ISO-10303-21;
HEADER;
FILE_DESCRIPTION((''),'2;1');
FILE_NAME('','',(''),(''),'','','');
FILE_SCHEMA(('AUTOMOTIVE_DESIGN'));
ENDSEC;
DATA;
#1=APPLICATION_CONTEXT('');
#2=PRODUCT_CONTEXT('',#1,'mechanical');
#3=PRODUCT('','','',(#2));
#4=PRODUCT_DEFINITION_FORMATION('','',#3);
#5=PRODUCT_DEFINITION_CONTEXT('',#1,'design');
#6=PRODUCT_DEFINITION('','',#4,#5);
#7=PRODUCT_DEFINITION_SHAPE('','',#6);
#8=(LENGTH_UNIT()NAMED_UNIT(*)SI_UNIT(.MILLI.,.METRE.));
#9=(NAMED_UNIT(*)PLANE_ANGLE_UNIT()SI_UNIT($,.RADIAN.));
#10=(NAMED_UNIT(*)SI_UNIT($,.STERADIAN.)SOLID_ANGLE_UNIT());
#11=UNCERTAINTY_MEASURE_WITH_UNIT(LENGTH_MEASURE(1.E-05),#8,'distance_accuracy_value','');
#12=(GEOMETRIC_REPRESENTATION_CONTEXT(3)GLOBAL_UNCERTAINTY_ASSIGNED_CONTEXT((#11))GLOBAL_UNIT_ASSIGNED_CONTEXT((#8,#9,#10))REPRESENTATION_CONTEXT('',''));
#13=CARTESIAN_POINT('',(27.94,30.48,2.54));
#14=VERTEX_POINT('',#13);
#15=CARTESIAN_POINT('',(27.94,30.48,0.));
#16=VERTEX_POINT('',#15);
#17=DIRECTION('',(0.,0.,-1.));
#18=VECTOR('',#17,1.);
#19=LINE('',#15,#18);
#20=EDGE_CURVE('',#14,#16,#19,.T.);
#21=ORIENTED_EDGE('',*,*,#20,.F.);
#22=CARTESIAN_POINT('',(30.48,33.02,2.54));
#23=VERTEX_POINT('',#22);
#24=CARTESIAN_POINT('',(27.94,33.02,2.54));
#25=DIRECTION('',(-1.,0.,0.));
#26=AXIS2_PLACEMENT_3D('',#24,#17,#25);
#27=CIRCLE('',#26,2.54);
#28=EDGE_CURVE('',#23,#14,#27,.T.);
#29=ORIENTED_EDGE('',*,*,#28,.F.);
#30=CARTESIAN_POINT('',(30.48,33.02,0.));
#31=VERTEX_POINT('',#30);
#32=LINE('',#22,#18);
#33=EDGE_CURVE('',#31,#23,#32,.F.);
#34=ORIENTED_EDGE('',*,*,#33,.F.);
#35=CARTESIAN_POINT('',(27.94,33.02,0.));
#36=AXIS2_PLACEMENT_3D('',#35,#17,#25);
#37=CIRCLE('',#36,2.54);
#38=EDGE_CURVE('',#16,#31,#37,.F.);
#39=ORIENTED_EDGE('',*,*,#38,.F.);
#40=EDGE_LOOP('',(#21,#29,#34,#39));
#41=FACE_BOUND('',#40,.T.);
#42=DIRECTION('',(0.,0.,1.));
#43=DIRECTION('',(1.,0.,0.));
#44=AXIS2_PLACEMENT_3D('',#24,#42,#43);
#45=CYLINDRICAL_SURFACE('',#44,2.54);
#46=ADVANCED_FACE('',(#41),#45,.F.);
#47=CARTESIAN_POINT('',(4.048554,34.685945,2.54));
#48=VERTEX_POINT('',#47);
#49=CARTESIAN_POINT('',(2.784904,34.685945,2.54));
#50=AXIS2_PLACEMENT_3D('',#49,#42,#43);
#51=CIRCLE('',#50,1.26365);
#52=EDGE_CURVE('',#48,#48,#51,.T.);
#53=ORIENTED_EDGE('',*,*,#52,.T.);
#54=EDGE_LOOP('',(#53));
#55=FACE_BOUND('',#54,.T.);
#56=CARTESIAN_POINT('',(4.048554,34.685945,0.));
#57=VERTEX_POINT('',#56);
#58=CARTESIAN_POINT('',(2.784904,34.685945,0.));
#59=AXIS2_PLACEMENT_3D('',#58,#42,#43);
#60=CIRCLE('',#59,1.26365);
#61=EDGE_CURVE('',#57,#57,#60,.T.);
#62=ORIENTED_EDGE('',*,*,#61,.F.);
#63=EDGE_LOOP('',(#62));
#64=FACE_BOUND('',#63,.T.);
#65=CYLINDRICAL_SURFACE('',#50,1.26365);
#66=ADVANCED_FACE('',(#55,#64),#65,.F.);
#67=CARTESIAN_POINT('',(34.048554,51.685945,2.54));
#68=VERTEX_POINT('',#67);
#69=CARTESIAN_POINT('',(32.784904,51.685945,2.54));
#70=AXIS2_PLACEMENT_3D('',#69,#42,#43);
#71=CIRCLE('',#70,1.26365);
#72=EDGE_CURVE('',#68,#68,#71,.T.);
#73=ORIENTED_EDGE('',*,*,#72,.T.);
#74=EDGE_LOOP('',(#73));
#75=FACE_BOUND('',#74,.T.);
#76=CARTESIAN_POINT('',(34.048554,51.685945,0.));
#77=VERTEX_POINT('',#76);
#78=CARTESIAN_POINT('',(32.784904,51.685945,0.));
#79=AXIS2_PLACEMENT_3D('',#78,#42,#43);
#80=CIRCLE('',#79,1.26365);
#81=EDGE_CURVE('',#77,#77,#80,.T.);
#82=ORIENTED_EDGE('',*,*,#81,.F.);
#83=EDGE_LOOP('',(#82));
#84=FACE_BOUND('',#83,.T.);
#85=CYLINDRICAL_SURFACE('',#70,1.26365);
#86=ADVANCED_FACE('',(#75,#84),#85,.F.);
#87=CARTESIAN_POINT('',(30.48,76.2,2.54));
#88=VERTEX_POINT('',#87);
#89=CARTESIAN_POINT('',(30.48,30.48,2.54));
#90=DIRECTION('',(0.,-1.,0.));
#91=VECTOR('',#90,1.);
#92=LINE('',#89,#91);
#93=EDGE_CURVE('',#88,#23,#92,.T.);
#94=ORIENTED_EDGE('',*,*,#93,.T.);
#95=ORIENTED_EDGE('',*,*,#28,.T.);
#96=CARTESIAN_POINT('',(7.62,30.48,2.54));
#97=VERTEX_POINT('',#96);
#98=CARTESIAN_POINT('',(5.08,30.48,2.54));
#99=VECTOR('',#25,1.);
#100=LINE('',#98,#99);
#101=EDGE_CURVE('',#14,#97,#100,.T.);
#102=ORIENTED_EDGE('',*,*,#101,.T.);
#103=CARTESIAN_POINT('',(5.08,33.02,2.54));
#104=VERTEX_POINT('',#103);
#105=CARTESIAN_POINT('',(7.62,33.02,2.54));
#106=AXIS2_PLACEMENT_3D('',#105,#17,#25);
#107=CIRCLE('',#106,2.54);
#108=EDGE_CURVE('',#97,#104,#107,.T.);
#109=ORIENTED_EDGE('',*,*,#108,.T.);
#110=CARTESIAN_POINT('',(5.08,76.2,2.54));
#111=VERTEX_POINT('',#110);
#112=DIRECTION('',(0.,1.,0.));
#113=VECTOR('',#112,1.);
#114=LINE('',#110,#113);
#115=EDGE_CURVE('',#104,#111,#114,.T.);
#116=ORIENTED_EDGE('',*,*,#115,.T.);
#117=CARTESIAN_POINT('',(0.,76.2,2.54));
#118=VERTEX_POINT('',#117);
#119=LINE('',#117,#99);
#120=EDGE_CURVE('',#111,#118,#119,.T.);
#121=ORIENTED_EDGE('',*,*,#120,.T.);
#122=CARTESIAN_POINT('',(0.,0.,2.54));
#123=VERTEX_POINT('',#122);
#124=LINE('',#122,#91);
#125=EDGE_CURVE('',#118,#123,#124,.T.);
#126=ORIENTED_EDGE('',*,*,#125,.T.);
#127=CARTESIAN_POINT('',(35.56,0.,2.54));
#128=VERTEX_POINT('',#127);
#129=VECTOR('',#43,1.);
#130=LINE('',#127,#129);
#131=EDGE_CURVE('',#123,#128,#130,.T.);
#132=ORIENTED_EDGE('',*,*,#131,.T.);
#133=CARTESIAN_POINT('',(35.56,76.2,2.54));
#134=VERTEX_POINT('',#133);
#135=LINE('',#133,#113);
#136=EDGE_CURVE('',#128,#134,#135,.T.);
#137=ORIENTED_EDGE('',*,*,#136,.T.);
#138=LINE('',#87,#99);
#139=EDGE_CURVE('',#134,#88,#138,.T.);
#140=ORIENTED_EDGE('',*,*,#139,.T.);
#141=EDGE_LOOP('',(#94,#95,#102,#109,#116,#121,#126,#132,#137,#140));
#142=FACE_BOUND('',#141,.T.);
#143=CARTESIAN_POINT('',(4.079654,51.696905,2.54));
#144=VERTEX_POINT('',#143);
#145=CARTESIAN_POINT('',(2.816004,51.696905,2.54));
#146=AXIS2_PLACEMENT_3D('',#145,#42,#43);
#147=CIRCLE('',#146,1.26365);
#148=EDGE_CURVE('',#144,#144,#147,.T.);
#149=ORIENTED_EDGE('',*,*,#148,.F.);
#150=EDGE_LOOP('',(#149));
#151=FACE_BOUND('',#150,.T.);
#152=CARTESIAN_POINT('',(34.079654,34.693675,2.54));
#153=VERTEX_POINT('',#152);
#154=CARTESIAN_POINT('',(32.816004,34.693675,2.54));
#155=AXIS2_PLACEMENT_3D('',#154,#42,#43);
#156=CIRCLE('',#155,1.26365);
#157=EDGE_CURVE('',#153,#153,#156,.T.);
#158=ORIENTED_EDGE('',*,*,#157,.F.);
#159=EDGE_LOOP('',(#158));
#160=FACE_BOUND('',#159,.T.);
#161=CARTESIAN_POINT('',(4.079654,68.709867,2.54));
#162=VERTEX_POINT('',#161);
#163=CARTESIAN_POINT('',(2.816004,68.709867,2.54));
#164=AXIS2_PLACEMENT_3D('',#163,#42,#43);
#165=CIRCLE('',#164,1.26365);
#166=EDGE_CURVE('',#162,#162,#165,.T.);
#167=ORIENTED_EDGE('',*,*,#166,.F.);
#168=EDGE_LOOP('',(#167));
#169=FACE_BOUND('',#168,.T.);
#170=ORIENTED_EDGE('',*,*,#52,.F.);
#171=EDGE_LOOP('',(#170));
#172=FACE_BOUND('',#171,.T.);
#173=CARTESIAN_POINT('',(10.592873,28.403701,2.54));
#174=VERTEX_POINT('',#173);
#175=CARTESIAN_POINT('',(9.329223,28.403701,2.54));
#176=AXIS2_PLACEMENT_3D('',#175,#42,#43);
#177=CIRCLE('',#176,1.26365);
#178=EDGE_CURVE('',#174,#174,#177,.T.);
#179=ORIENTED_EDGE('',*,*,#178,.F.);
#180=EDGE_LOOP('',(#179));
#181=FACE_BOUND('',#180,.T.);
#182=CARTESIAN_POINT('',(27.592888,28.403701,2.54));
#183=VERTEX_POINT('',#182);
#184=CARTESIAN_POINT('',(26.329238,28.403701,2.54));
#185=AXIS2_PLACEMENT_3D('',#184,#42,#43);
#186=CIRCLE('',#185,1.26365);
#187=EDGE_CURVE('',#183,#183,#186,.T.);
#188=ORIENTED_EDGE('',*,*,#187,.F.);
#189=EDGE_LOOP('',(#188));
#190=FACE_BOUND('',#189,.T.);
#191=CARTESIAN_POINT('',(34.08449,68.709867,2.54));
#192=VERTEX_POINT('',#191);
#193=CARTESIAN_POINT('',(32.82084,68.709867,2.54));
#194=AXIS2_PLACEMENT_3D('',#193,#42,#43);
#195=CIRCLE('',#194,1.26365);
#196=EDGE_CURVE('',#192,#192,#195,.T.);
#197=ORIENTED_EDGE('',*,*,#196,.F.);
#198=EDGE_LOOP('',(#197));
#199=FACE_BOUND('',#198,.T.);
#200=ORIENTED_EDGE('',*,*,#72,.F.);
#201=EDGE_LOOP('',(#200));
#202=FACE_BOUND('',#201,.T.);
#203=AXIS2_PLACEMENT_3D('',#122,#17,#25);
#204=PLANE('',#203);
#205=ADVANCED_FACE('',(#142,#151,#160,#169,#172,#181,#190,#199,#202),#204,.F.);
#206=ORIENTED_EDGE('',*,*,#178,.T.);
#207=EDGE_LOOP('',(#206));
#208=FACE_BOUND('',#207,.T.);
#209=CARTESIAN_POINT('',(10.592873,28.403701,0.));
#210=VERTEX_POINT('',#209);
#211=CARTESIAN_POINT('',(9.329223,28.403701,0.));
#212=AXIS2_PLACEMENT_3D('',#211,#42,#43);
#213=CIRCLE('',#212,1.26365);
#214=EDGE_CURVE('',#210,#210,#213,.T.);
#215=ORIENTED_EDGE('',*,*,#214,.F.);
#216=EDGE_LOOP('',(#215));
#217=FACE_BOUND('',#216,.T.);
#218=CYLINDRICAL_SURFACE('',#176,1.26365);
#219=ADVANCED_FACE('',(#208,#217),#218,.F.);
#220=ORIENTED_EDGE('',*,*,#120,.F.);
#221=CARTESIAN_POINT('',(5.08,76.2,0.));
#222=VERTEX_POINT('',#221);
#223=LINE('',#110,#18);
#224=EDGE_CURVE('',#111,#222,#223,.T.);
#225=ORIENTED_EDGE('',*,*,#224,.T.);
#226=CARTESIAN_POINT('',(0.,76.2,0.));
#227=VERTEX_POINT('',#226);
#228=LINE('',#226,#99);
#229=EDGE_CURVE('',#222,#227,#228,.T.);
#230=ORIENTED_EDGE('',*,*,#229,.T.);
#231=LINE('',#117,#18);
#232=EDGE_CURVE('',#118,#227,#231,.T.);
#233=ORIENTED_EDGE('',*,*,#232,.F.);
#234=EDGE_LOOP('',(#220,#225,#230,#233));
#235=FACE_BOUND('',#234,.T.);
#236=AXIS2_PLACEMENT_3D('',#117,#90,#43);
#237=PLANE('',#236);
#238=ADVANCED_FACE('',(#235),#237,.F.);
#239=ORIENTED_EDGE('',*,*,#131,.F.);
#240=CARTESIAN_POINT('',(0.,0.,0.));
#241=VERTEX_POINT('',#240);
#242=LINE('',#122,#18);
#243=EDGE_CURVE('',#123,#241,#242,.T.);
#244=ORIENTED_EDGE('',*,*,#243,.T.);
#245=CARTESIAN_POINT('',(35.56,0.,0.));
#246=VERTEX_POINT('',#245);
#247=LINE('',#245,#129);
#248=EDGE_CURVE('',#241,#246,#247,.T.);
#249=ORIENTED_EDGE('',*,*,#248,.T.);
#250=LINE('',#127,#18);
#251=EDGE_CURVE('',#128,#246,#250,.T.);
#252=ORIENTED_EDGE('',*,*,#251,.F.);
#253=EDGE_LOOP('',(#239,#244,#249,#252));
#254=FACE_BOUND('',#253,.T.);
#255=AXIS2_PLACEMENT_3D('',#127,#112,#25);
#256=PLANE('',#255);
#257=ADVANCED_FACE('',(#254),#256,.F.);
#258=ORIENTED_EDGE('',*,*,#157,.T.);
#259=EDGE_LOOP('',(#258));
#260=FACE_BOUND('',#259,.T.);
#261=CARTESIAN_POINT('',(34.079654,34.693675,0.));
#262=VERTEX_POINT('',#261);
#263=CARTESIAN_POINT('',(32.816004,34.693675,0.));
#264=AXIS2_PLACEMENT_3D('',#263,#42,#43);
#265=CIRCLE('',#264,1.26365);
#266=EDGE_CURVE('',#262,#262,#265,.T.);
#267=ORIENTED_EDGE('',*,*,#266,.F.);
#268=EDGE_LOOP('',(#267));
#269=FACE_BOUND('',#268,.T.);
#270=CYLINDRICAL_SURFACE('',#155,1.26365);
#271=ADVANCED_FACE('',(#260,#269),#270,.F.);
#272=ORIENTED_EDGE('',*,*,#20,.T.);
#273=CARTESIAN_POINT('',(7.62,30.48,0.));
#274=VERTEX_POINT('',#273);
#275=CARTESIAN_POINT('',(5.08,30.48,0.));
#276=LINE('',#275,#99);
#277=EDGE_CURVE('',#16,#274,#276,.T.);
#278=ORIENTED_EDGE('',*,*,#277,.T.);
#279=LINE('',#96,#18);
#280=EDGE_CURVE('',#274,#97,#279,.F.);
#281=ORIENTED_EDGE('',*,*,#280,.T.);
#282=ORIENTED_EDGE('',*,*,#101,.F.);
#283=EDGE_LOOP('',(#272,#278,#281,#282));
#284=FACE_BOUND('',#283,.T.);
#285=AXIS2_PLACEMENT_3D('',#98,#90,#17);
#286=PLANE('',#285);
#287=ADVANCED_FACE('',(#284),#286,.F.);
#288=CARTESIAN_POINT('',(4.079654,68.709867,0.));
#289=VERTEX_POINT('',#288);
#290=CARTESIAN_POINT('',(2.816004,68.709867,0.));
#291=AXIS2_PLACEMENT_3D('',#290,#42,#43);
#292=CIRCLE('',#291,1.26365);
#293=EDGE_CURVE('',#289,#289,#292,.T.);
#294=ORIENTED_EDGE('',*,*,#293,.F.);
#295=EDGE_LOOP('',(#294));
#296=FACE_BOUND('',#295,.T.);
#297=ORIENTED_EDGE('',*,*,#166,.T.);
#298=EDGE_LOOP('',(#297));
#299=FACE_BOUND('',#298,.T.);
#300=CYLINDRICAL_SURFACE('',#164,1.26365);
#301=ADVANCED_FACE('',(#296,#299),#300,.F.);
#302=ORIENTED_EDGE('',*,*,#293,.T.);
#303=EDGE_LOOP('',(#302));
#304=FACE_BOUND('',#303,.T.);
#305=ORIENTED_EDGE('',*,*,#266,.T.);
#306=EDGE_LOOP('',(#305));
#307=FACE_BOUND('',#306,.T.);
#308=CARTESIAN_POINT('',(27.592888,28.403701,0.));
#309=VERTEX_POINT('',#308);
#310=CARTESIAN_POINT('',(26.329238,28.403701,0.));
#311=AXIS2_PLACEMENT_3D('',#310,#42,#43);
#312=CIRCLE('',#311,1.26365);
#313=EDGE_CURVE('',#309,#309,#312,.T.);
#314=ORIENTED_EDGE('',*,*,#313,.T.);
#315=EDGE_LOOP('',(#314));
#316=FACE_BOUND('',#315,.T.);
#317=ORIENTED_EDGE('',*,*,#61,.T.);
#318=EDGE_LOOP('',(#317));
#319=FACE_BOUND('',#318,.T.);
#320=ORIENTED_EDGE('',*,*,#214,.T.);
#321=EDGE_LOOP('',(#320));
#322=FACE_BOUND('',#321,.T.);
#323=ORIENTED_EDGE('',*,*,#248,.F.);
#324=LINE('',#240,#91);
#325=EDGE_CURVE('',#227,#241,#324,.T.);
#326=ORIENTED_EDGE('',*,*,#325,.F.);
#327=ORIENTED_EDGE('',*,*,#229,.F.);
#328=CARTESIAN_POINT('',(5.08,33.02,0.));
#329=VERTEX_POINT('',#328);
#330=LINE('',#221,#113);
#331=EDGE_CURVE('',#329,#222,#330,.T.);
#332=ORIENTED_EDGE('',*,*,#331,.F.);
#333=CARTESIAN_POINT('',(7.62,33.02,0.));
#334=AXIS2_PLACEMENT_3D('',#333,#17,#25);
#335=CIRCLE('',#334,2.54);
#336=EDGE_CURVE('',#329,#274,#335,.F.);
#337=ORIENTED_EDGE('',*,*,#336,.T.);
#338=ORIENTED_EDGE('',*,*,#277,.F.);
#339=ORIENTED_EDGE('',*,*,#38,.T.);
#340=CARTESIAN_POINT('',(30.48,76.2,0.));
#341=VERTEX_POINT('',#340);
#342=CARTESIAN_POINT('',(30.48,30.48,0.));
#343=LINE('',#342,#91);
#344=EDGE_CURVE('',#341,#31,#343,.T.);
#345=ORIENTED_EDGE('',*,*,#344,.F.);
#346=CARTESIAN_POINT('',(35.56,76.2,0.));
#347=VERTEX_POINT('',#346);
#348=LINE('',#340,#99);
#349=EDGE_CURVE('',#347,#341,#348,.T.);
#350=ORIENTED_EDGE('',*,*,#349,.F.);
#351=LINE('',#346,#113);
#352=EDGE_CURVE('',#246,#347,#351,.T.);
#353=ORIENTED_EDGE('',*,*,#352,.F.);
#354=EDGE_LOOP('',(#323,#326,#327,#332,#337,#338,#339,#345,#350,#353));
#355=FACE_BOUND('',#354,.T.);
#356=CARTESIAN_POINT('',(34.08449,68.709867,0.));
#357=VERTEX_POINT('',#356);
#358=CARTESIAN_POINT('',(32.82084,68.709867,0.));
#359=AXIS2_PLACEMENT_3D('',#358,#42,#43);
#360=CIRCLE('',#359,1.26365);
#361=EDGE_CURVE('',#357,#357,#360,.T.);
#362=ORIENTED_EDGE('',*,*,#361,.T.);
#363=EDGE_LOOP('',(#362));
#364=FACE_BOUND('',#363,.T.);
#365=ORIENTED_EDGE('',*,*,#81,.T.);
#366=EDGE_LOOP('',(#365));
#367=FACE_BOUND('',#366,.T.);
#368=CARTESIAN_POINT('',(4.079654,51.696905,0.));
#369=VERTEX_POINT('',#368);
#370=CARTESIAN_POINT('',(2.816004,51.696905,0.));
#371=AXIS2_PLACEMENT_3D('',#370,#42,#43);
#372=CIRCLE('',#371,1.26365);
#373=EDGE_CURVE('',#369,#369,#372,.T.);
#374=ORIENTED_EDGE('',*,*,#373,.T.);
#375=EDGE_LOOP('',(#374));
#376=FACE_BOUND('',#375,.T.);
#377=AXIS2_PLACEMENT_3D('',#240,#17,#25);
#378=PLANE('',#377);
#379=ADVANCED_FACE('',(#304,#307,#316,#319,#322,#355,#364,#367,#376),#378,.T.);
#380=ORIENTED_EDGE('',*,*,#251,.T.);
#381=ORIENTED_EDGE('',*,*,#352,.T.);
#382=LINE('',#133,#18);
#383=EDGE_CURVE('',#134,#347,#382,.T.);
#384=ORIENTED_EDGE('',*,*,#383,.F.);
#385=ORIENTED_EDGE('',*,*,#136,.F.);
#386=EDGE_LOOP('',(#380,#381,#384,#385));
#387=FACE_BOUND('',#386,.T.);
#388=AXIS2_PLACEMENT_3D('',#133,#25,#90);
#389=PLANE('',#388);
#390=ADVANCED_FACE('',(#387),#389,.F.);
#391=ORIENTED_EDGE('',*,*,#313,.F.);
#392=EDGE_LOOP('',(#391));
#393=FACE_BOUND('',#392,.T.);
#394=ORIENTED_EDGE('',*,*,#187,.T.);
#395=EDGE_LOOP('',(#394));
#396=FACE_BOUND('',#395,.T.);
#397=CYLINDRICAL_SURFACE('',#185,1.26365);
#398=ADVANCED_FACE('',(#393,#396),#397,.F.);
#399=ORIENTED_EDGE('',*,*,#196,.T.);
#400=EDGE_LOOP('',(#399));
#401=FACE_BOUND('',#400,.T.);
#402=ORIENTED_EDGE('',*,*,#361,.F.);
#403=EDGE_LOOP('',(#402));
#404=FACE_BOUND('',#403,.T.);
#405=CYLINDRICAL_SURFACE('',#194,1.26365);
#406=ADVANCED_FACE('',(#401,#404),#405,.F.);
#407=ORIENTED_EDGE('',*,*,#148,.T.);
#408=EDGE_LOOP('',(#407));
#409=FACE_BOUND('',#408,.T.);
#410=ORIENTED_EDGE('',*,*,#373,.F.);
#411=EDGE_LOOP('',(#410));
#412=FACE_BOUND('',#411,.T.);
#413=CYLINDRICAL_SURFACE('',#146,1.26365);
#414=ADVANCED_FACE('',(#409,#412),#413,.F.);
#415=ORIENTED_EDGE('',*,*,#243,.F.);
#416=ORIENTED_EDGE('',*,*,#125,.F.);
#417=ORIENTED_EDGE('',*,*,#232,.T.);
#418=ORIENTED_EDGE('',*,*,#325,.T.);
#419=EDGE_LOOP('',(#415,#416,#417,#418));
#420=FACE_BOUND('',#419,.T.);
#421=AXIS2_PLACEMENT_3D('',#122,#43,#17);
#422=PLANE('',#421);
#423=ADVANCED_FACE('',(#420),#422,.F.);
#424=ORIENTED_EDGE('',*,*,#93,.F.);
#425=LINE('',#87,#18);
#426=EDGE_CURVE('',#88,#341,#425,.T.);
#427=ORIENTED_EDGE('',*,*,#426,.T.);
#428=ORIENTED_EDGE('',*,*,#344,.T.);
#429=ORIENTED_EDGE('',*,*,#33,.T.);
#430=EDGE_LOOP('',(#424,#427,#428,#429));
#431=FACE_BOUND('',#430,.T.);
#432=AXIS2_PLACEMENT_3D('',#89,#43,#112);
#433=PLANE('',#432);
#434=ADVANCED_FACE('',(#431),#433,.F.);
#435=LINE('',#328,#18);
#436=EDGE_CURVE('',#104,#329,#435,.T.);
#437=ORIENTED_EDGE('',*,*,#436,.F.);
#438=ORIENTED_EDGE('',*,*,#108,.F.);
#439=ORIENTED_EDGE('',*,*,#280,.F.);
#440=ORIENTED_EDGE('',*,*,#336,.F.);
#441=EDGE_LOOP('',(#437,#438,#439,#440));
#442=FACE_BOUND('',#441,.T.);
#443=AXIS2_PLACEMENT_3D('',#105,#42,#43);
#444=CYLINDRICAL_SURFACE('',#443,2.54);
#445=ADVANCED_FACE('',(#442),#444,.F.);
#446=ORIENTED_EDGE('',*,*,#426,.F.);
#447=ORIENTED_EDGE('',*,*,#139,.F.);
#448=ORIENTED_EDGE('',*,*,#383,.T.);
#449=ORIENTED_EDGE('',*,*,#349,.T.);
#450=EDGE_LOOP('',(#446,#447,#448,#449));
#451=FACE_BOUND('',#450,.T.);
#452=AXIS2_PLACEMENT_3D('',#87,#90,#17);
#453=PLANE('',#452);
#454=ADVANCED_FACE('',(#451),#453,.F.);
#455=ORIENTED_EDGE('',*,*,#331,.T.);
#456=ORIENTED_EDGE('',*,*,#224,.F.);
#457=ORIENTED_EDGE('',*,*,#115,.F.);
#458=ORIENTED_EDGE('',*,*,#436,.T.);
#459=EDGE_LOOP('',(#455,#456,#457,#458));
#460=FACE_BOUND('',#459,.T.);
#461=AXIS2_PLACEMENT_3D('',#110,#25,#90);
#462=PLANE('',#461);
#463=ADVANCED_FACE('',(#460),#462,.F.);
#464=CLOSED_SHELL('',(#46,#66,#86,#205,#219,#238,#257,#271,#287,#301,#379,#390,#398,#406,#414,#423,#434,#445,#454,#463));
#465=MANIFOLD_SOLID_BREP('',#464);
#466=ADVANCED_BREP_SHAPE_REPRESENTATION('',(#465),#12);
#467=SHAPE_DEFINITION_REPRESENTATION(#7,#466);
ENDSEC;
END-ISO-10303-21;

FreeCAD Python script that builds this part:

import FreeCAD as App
import Part
import Sketcher
from FreeCAD import Vector
Q = App.Units.Quantity


def edges_at(feature, points):
    """Names of the edges that pass closest to the given points."""
    edges = feature.Shape.Edges
    near = lambda p: min(range(len(edges)), key=lambda i: edges[i].distToShape(Part.Vertex(*p))[0])
    return sorted({f"Edge{near(p) + 1}" for p in points})


def add_polygon(sketch, points):
    """Adds a closed chain of lines whose ends are joined by coincident constraints."""
    first, n = sketch.GeometryCount, len(points)
    for a, b in zip(points, points[1:] + points[:1]):
        sketch.addGeometry(Part.LineSegment(App.Vector(*a, 0), App.Vector(*b, 0)), False)
    for i in range(n):
        sketch.addConstraint(Sketcher.Constraint("Coincident", first + i, 2, first + (i + 1) % n, 1))

doc = App.newDocument("Part")
body = doc.addObject("PartDesign::Body", "Body")

sketch1 = body.newObject("Sketcher::SketchObject", "Sketch")
sketch1.AttachmentSupport = (doc.getObject("XY_Plane"), [""])
sketch1.MapMode = "FlatFace"
add_polygon(sketch1, [(0, 76), (0, 0), (36, 0), (36, 76), (30, 76), (30, 30), (5, 30), (5, 76)])
sketch1.addConstraint([
    Sketcher.Constraint("Vertical", 0),
    Sketcher.Constraint("Horizontal", 1),
    Sketcher.Constraint("Vertical", 2),
    Sketcher.Constraint("Horizontal", 3),
    Sketcher.Constraint("Vertical", 4),
    Sketcher.Constraint("Horizontal", 5),
    Sketcher.Constraint("Vertical", 6),
    Sketcher.Constraint("Horizontal", 7),
    Sketcher.Constraint("Coincident", 0, 2, -1, 1),
    Sketcher.Constraint("Horizontal", 3, 2, 6, 2),
    Sketcher.Constraint("Equal", 3, 7),
    Sketcher.Constraint("DistanceX", 5, 2, 5, 1, Q("1 in")),
    Sketcher.Constraint("DistanceY", 0, 2, 0, 1, Q("3 in")),
    Sketcher.Constraint("DistanceX", 1, 1, 1, 2, Q("1.4 in")),
    Sketcher.Constraint("DistanceY", 4, 2, 4, 1, Q("1.8 in")),
])
pad1 = body.newObject("PartDesign::Pad", "Pad")
pad1.Profile = sketch1
pad1.Length = Q("0.1 in")
doc.recompute()

fillet = body.newObject("PartDesign::Fillet", "Fillet")
fillet.Base = (pad1, edges_at(pad1, [(5.08, 30.48, 1.27), (30.48, 30.48, 1.27)]))
fillet.Radius = Q("0.1 in")

sketch2 = body.newObject("Sketcher::SketchObject", "Sketch001")
sketch2.AttachmentSupport = (doc.getObject("XY_Plane"), [""])
sketch2.MapMode = "FlatFace"
sketch2.AttachmentOffset = App.Placement(Vector(0, 0, 0.1 * 25.4), App.Rotation())
sketch2.addGeometry([
    Part.Circle(Vector(32.8, 68.7, 0), Vector(0, 0, 1), 1.3),
    Part.Circle(Vector(32.8, 51.7, 0), Vector(0, 0, 1), 1.3),
    Part.Circle(Vector(32.8, 34.7, 0), Vector(0, 0, 1), 1.3),
    Part.Circle(Vector(26.3, 28.4, 0), Vector(0, 0, 1), 1.3),
    Part.Circle(Vector(9.3, 28.4, 0), Vector(0, 0, 1), 1.3),
    Part.Circle(Vector(2.8, 34.7, 0), Vector(0, 0, 1), 1.3),
    Part.Circle(Vector(2.8, 51.7, 0), Vector(0, 0, 1), 1.3),
    Part.Circle(Vector(2.8, 68.7, 0), Vector(0, 0, 1), 1.3),
], False)
sketch2.addConstraint([
    Sketcher.Constraint("Equal", 0, 1),
    Sketcher.Constraint("Equal", 1, 2),
    Sketcher.Constraint("Equal", 2, 3),
    Sketcher.Constraint("Equal", 3, 4),
    Sketcher.Constraint("Equal", 4, 5),
    Sketcher.Constraint("Equal", 5, 6),
    Sketcher.Constraint("Equal", 6, 7),
    Sketcher.Constraint("Horizontal", 3, 3, 4, 3),
    Sketcher.Constraint("Horizontal", 0, 3, 7, 3),
    Sketcher.Constraint("Vertical", 6, 3, 7, 3),
    Sketcher.Constraint("Diameter", 0, Q("0.0995 in")),
    Sketcher.Constraint("DistanceY", -1, 1, 3, 3, Q("28.403701 mm")),
    Sketcher.Constraint("DistanceX", 1, 3, 2, 3, Q("0.031099 mm")),
    Sketcher.Constraint("DistanceX", 5, 3, 2, 3, Q("30.031099 mm")),
    Sketcher.Constraint("DistanceY", 5, 3, 1, 3, Q("17 mm")),
    Sketcher.Constraint("DistanceX", 5, 3, 6, 3, Q("0.031099 mm")),
    Sketcher.Constraint("DistanceX", -1, 1, 0, 3, Q("32.82084 mm")),
    Sketcher.Constraint("DistanceY", 1, 3, 0, 3, Q("17.023921 mm")),
    Sketcher.Constraint("DistanceY", 2, 3, 1, 3, Q("16.99227 mm")),
    Sketcher.Constraint("DistanceX", 4, 3, 2, 3, Q("23.48678 mm")),
    Sketcher.Constraint("DistanceY", 5, 3, 6, 3, Q("17.01096 mm")),
    Sketcher.Constraint("DistanceY", -1, 1, 0, 3, Q("68.709867 mm")),
    Sketcher.Constraint("DistanceX", -1, 1, 1, 3, Q("32.784904 mm")),
    Sketcher.Constraint("DistanceX", -1, 1, 3, 3, Q("26.329238 mm")),
])
doc.recompute()
hole = body.newObject("PartDesign::Hole", "Hole")
hole.Profile = sketch2
hole.ThreadType = "None"
hole.Diameter = Q("0.0995 in")
hole.DepthType = "ThroughAll"

doc.recompute()
